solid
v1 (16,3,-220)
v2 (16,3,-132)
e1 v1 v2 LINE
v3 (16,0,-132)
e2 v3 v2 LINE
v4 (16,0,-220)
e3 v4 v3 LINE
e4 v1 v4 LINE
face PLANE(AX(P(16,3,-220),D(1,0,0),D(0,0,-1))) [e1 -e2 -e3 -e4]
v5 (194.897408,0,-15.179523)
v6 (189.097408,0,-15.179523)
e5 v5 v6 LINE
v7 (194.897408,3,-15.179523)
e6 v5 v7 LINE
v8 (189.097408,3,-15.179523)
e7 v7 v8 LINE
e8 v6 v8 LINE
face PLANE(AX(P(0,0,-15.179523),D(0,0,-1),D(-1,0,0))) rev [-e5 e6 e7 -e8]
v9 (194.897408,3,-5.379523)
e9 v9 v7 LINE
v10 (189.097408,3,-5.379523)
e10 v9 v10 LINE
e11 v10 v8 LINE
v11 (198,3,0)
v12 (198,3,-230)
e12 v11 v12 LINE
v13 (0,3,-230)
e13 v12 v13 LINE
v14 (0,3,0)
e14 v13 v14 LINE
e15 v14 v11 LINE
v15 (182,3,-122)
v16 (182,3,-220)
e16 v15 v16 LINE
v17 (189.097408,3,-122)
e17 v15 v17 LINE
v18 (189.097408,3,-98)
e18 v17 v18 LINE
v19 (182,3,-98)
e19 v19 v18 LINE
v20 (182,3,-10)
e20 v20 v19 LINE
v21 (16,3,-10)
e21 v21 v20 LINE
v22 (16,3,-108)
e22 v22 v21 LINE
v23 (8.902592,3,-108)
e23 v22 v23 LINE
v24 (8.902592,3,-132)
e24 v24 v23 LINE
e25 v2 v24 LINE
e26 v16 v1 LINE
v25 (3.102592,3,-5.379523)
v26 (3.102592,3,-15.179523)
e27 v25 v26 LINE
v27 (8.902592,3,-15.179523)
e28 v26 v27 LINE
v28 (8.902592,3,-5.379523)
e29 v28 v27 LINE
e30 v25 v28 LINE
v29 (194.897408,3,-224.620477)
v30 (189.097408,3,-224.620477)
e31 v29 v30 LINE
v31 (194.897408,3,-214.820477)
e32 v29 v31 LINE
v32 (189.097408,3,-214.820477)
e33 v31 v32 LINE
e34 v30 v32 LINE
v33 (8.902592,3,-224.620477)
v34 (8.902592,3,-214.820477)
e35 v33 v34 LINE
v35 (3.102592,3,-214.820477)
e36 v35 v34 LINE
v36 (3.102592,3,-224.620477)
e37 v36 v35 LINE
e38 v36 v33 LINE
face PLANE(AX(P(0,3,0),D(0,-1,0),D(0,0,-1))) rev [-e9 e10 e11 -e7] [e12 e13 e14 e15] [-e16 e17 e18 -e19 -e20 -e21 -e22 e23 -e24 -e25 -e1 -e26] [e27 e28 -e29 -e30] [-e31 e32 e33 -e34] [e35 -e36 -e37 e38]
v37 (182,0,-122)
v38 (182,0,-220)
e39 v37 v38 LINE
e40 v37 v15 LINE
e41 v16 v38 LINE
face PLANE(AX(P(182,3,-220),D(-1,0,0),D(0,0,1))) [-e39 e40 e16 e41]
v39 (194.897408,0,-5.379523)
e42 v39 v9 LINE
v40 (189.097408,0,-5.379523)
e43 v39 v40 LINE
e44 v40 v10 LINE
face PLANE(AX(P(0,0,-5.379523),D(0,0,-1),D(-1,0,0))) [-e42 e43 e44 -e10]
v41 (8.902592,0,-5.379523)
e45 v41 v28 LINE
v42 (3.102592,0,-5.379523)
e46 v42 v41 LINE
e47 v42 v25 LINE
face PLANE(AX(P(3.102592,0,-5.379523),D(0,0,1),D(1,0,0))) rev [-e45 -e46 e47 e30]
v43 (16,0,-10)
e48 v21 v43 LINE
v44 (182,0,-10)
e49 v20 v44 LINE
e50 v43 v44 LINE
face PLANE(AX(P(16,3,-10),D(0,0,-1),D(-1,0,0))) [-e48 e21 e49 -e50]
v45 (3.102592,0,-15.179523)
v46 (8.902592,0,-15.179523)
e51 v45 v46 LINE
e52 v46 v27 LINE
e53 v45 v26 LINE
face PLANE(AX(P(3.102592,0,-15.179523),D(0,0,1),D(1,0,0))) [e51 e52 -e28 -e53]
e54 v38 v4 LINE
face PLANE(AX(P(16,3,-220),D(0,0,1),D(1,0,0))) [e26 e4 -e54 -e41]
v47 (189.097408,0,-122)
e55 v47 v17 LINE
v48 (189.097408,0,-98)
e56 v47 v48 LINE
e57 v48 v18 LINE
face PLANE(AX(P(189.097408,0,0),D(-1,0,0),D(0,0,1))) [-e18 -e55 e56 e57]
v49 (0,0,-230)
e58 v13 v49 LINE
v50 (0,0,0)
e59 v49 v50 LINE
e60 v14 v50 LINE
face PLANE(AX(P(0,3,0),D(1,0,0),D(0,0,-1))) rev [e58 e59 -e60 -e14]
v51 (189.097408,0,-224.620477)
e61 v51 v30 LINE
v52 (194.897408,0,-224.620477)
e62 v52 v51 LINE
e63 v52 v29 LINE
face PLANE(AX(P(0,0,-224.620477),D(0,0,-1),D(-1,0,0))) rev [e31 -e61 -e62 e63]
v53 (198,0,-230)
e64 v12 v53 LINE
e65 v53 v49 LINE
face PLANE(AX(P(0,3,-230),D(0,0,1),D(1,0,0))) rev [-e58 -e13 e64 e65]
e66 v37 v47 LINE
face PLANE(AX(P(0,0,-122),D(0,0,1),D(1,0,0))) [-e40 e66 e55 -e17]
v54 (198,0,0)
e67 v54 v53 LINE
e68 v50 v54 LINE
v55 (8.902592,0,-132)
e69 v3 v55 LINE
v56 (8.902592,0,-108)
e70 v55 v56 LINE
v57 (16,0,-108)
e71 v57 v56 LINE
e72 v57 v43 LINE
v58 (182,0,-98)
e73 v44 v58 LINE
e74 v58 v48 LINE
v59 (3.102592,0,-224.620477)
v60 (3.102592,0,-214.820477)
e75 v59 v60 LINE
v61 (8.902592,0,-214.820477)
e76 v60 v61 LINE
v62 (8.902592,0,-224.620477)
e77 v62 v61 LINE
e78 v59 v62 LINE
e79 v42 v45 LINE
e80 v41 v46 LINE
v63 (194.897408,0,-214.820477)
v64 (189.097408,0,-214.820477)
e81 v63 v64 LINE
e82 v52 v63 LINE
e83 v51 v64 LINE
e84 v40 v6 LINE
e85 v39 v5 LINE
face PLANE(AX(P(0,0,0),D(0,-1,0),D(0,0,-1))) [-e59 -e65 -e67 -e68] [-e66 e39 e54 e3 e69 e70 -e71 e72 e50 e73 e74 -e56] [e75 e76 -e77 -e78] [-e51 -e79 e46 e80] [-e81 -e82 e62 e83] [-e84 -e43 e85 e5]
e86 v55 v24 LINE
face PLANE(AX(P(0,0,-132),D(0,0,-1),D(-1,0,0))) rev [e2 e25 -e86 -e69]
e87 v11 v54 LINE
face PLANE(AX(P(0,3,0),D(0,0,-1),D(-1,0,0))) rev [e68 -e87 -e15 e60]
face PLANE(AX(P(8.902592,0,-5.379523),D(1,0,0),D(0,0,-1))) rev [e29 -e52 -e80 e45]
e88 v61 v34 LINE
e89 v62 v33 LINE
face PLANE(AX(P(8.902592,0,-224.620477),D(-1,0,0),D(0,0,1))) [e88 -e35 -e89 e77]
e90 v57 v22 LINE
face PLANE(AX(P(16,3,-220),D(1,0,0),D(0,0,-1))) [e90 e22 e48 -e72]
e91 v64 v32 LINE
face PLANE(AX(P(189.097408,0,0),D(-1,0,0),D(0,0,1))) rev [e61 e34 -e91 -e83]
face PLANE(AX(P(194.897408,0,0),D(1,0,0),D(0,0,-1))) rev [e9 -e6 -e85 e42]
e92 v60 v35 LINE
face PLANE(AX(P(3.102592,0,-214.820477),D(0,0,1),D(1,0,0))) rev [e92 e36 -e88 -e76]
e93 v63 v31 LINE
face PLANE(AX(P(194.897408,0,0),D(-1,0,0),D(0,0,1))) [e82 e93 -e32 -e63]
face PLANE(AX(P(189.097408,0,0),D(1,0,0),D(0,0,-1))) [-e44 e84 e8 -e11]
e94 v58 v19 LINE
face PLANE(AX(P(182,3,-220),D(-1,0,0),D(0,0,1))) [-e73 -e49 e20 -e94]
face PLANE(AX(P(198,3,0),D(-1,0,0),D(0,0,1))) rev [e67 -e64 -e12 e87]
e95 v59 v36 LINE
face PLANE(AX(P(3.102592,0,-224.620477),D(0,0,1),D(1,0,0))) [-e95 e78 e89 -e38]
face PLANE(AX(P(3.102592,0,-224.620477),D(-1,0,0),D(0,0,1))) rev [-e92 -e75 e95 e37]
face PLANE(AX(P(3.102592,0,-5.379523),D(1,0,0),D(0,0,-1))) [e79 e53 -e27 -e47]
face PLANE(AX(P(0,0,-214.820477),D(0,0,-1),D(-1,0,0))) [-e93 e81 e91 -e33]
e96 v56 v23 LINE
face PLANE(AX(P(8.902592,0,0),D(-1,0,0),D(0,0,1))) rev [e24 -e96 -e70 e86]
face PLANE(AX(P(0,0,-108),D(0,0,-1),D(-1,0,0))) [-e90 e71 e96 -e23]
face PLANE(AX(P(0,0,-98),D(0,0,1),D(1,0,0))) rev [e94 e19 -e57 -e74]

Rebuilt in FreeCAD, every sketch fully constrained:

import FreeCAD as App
import Part
import Sketcher
from FreeCAD import Vector

doc = App.newDocument("Part")
params = doc.addObject("Spreadsheet::Sheet", "Params")
for row, (alias, value) in enumerate([
    ("sketch1_width", "198 mm"),
    ("sketch1_width2", "166 mm"),
    ("sketch1_height", "230 mm"),
    ("sketch1_height2", "210 mm"),
    ("pad1_length", "3 mm"),
    ("sketch2_height", "24 mm"),
    ("sketch2_width", "5.8 mm"),
    ("sketch2_height2", "9.8 mm"),
    ("pocket1_length", "3 mm"),
], start=1):
    params.set(f"A{row}", alias)
    params.set(f"B{row}", "=" + value)
    params.setAlias(f"B{row}", alias)

body = doc.addObject("PartDesign::Body", "Body")

# Sketch on XZ plane
sketch1 = body.newObject("Sketcher::SketchObject", "Sketch")
sketch1.AttachmentSupport = (doc.getObject("XZ_Plane"), [""])
sketch1.MapMode = "FlatFace"
sketch1.addGeometry([
    Part.LineSegment(Vector(0, -230, 0), Vector(0, 0, 0)),  # 0
    Part.LineSegment(Vector(0, 0, 0), Vector(198, 0, 0)),  # 1
    Part.LineSegment(Vector(198, 0, 0), Vector(198, -230, 0)),  # 2
    Part.LineSegment(Vector(198, -230, 0), Vector(0, -230, 0)),  # 3
    Part.LineSegment(Vector(182, -10, 0), Vector(16, -10, 0)),  # 4
    Part.LineSegment(Vector(16, -10, 0), Vector(16, -220, 0)),  # 5
    Part.LineSegment(Vector(16, -220, 0), Vector(182, -220, 0)),  # 6
    Part.LineSegment(Vector(182, -220, 0), Vector(182, -10, 0)),  # 7
], False)
sketch1.addConstraint([
    Sketcher.Constraint("Coincident", 0, 2, 1, 1),
    Sketcher.Constraint("Coincident", 1, 2, 2, 1),
    Sketcher.Constraint("Coincident", 2, 2, 3, 1),
    Sketcher.Constraint("Coincident", 3, 2, 0, 1),
    Sketcher.Constraint("Coincident", 4, 2, 5, 1),
    Sketcher.Constraint("Coincident", 5, 2, 6, 1),
    Sketcher.Constraint("Coincident", 6, 2, 7, 1),
    Sketcher.Constraint("Coincident", 7, 2, 4, 1),
    Sketcher.Constraint("Vertical", 0),
    Sketcher.Constraint("Horizontal", 1),
    Sketcher.Constraint("Vertical", 2),
    Sketcher.Constraint("Horizontal", 3),
    Sketcher.Constraint("Horizontal", 4),
    Sketcher.Constraint("Vertical", 5),
    Sketcher.Constraint("Horizontal", 6),
    Sketcher.Constraint("Vertical", 7),
    Sketcher.Constraint("Coincident", 0, 2, -1, 1),
    Sketcher.Constraint("DistanceX", 1, 1, 1, 2, 198.0),
    Sketcher.Constraint("DistanceX", 4, 2, 4, 1, 166.0),
    Sketcher.Constraint("DistanceY", 0, 1, 0, 2, 230.0),
    Sketcher.Constraint("DistanceY", 5, 2, 5, 1, 210.0),
    Sketcher.Constraint("DistanceX", -1, 1, 4, 2, 16.0),
    Sketcher.Constraint("DistanceY", 4, 2, -1, 1, 10.0),
])
sketch1.setExpression("Constraints[17]", "Params.sketch1_width")
sketch1.setExpression("Constraints[18]", "Params.sketch1_width2")
sketch1.setExpression("Constraints[19]", "Params.sketch1_height")
sketch1.setExpression("Constraints[20]", "Params.sketch1_height2")
pad1 = body.newObject("PartDesign::Pad", "Pad")
pad1.Profile = sketch1
pad1.setExpression("Length", "Params.pad1_length")
pad1.Reversed = True

# Sketch on XZ plane
sketch2 = body.newObject("Sketcher::SketchObject", "Sketch001")
sketch2.AttachmentSupport = (doc.getObject("XZ_Plane"), [""])
sketch2.MapMode = "FlatFace"
sketch2.AttachmentOffset = App.Placement(Vector(0, 0, -3), App.Rotation())
sketch2.addGeometry([
    Part.LineSegment(Vector(8.902592, -132, 0), Vector(8.902592, -108, 0)),  # 0
    Part.LineSegment(Vector(8.902592, -108, 0), Vector(16, -108, 0)),  # 1
    Part.LineSegment(Vector(16, -108, 0), Vector(16, -132, 0)),  # 2
    Part.LineSegment(Vector(16, -132, 0), Vector(8.902592, -132, 0)),  # 3
    Part.LineSegment(Vector(189.097408, -15.179523, 0), Vector(189.097408, -5.379523, 0)),  # 4
    Part.LineSegment(Vector(189.097408, -5.379523, 0), Vector(194.897408, -5.379523, 0)),  # 5
    Part.LineSegment(Vector(194.897408, -5.379523, 0), Vector(194.897408, -15.179523, 0)),  # 6
    Part.LineSegment(Vector(194.897408, -15.179523, 0), Vector(189.097408, -15.179523, 0)),  # 7
    Part.LineSegment(Vector(182, -122, 0), Vector(182, -98, 0)),  # 8
    Part.LineSegment(Vector(182, -98, 0), Vector(189.097408, -98, 0)),  # 9
    Part.LineSegment(Vector(189.097408, -98, 0), Vector(189.097408, -122, 0)),  # 10
    Part.LineSegment(Vector(189.097408, -122, 0), Vector(182, -122, 0)),  # 11
    Part.LineSegment(Vector(189.097408, -224.620477, 0), Vector(189.097408, -214.820477, 0)),  # 12
    Part.LineSegment(Vector(189.097408, -214.820477, 0), Vector(194.897408, -214.820477, 0)),  # 13
    Part.LineSegment(Vector(194.897408, -214.820477, 0), Vector(194.897408, -224.620477, 0)),  # 14
    Part.LineSegment(Vector(194.897408, -224.620477, 0), Vector(189.097408, -224.620477, 0)),  # 15
    Part.LineSegment(Vector(3.102592, -224.620477, 0), Vector(3.102592, -214.820477, 0)),  # 16
    Part.LineSegment(Vector(3.102592, -214.820477, 0), Vector(8.902592, -214.820477, 0)),  # 17
    Part.LineSegment(Vector(8.902592, -214.820477, 0), Vector(8.902592, -224.620477, 0)),  # 18
    Part.LineSegment(Vector(8.902592, -224.620477, 0), Vector(3.102592, -224.620477, 0)),  # 19
    Part.LineSegment(Vector(3.102592, -15.179523, 0), Vector(3.102592, -5.379523, 0)),  # 20
    Part.LineSegment(Vector(3.102592, -5.379523, 0), Vector(8.902592, -5.379523, 0)),  # 21
    Part.LineSegment(Vector(8.902592, -5.379523, 0), Vector(8.902592, -15.179523, 0)),  # 22
    Part.LineSegment(Vector(8.902592, -15.179523, 0), Vector(3.102592, -15.179523, 0)),  # 23
], False)
sketch2.addConstraint([
    Sketcher.Constraint("Coincident", 0, 2, 1, 1),
    Sketcher.Constraint("Coincident", 1, 2, 2, 1),
    Sketcher.Constraint("Coincident", 2, 2, 3, 1),
    Sketcher.Constraint("Coincident", 3, 2, 0, 1),
    Sketcher.Constraint("Coincident", 4, 2, 5, 1),
    Sketcher.Constraint("Coincident", 5, 2, 6, 1),
    Sketcher.Constraint("Coincident", 6, 2, 7, 1),
    Sketcher.Constraint("Coincident", 7, 2, 4, 1),
    Sketcher.Constraint("Coincident", 8, 2, 9, 1),
    Sketcher.Constraint("Coincident", 9, 2, 10, 1),
    Sketcher.Constraint("Coincident", 10, 2, 11, 1),
    Sketcher.Constraint("Coincident", 11, 2, 8, 1),
    Sketcher.Constraint("Coincident", 12, 2, 13, 1),
    Sketcher.Constraint("Coincident", 13, 2, 14, 1),
    Sketcher.Constraint("Coincident", 14, 2, 15, 1),
    Sketcher.Constraint("Coincident", 15, 2, 12, 1),
    Sketcher.Constraint("Coincident", 16, 2, 17, 1),
    Sketcher.Constraint("Coincident", 17, 2, 18, 1),
    Sketcher.Constraint("Coincident", 18, 2, 19, 1),
    Sketcher.Constraint("Coincident", 19, 2, 16, 1),
    Sketcher.Constraint("Coincident", 20, 2, 21, 1),
    Sketcher.Constraint("Coincident", 21, 2, 22, 1),
    Sketcher.Constraint("Coincident", 22, 2, 23, 1),
    Sketcher.Constraint("Coincident", 23, 2, 20, 1),
    Sketcher.Constraint("Vertical", 0),
    Sketcher.Constraint("Horizontal", 1),
    Sketcher.Constraint("Vertical", 2),
    Sketcher.Constraint("Horizontal", 3),
    Sketcher.Constraint("Vertical", 4),
    Sketcher.Constraint("Horizontal", 5),
    Sketcher.Constraint("Vertical", 6),
    Sketcher.Constraint("Horizontal", 7),
    Sketcher.Constraint("Vertical", 8),
    Sketcher.Constraint("Horizontal", 9),
    Sketcher.Constraint("Vertical", 10),
    Sketcher.Constraint("Horizontal", 11),
    Sketcher.Constraint("Vertical", 12),
    Sketcher.Constraint("Horizontal", 13),
    Sketcher.Constraint("Vertical", 14),
    Sketcher.Constraint("Horizontal", 15),
    Sketcher.Constraint("Vertical", 16),
    Sketcher.Constraint("Horizontal", 17),
    Sketcher.Constraint("Vertical", 18),
    Sketcher.Constraint("Horizontal", 19),
    Sketcher.Constraint("Vertical", 20),
    Sketcher.Constraint("Horizontal", 21),
    Sketcher.Constraint("Vertical", 22),
    Sketcher.Constraint("Horizontal", 23),
    Sketcher.Constraint("Horizontal", 13, 2, 16, 2),
    Sketcher.Constraint("Horizontal", 15, 2, 18, 2),
    Sketcher.Constraint("Horizontal", 5, 2, 20, 2),
    Sketcher.Constraint("Horizontal", 7, 2, 22, 2),
    Sketcher.Constraint("Vertical", 7, 2, 9, 2),
    Sketcher.Constraint("Vertical", 10, 2, 12, 2),
    Sketcher.Constraint("Vertical", 6, 2, 13, 2),
    Sketcher.Constraint("Vertical", 3, 2, 17, 2),
    Sketcher.Constraint("Vertical", 19, 2, 20, 2),
    Sketcher.Constraint("Vertical", 18, 2, 21, 2),
    Sketcher.Constraint("Equal", 3, 9),
    Sketcher.Constraint("Equal", 15, 17),
    Sketcher.Constraint("Equal", 2, 8),
    Sketcher.Constraint("Equal", 6, 12),
    Sketcher.Constraint("DistanceY", 0, 1, 0, 2, 24.0),
    Sketcher.Constraint("DistanceX", 5, 1, 5, 2, 5.8),
    Sketcher.Constraint("DistanceY", 4, 1, 4, 2, 9.8),
    Sketcher.Constraint("DistanceY", 0, 2, -1, 1, 108.0),
    Sketcher.Constraint("DistanceX", -1, 1, 1, 2, 16.0),
    Sketcher.Constraint("DistanceX", -1, 1, 8, 2, 182.0),
    Sketcher.Constraint("DistanceY", 8, 2, -1, 1, 98.0),
    Sketcher.Constraint("DistanceX", 1, 1, 1, 2, 7.097408),
    Sketcher.Constraint("DistanceY", 4, 2, -1, 1, 5.379523),
    Sketcher.Constraint("DistanceY", 12, 2, -1, 1, 214.820477),
])
sketch2.setExpression("Constraints[62]", "Params.sketch2_height")
sketch2.setExpression("Constraints[63]", "Params.sketch2_width")
sketch2.setExpression("Constraints[64]", "Params.sketch2_height2")
pocket1 = body.newObject("PartDesign::Pocket", "Pocket")
pocket1.Profile = sketch2
pocket1.setExpression("Length", "Params.pocket1_length")
pocket1.Reversed = True

doc.recompute()
